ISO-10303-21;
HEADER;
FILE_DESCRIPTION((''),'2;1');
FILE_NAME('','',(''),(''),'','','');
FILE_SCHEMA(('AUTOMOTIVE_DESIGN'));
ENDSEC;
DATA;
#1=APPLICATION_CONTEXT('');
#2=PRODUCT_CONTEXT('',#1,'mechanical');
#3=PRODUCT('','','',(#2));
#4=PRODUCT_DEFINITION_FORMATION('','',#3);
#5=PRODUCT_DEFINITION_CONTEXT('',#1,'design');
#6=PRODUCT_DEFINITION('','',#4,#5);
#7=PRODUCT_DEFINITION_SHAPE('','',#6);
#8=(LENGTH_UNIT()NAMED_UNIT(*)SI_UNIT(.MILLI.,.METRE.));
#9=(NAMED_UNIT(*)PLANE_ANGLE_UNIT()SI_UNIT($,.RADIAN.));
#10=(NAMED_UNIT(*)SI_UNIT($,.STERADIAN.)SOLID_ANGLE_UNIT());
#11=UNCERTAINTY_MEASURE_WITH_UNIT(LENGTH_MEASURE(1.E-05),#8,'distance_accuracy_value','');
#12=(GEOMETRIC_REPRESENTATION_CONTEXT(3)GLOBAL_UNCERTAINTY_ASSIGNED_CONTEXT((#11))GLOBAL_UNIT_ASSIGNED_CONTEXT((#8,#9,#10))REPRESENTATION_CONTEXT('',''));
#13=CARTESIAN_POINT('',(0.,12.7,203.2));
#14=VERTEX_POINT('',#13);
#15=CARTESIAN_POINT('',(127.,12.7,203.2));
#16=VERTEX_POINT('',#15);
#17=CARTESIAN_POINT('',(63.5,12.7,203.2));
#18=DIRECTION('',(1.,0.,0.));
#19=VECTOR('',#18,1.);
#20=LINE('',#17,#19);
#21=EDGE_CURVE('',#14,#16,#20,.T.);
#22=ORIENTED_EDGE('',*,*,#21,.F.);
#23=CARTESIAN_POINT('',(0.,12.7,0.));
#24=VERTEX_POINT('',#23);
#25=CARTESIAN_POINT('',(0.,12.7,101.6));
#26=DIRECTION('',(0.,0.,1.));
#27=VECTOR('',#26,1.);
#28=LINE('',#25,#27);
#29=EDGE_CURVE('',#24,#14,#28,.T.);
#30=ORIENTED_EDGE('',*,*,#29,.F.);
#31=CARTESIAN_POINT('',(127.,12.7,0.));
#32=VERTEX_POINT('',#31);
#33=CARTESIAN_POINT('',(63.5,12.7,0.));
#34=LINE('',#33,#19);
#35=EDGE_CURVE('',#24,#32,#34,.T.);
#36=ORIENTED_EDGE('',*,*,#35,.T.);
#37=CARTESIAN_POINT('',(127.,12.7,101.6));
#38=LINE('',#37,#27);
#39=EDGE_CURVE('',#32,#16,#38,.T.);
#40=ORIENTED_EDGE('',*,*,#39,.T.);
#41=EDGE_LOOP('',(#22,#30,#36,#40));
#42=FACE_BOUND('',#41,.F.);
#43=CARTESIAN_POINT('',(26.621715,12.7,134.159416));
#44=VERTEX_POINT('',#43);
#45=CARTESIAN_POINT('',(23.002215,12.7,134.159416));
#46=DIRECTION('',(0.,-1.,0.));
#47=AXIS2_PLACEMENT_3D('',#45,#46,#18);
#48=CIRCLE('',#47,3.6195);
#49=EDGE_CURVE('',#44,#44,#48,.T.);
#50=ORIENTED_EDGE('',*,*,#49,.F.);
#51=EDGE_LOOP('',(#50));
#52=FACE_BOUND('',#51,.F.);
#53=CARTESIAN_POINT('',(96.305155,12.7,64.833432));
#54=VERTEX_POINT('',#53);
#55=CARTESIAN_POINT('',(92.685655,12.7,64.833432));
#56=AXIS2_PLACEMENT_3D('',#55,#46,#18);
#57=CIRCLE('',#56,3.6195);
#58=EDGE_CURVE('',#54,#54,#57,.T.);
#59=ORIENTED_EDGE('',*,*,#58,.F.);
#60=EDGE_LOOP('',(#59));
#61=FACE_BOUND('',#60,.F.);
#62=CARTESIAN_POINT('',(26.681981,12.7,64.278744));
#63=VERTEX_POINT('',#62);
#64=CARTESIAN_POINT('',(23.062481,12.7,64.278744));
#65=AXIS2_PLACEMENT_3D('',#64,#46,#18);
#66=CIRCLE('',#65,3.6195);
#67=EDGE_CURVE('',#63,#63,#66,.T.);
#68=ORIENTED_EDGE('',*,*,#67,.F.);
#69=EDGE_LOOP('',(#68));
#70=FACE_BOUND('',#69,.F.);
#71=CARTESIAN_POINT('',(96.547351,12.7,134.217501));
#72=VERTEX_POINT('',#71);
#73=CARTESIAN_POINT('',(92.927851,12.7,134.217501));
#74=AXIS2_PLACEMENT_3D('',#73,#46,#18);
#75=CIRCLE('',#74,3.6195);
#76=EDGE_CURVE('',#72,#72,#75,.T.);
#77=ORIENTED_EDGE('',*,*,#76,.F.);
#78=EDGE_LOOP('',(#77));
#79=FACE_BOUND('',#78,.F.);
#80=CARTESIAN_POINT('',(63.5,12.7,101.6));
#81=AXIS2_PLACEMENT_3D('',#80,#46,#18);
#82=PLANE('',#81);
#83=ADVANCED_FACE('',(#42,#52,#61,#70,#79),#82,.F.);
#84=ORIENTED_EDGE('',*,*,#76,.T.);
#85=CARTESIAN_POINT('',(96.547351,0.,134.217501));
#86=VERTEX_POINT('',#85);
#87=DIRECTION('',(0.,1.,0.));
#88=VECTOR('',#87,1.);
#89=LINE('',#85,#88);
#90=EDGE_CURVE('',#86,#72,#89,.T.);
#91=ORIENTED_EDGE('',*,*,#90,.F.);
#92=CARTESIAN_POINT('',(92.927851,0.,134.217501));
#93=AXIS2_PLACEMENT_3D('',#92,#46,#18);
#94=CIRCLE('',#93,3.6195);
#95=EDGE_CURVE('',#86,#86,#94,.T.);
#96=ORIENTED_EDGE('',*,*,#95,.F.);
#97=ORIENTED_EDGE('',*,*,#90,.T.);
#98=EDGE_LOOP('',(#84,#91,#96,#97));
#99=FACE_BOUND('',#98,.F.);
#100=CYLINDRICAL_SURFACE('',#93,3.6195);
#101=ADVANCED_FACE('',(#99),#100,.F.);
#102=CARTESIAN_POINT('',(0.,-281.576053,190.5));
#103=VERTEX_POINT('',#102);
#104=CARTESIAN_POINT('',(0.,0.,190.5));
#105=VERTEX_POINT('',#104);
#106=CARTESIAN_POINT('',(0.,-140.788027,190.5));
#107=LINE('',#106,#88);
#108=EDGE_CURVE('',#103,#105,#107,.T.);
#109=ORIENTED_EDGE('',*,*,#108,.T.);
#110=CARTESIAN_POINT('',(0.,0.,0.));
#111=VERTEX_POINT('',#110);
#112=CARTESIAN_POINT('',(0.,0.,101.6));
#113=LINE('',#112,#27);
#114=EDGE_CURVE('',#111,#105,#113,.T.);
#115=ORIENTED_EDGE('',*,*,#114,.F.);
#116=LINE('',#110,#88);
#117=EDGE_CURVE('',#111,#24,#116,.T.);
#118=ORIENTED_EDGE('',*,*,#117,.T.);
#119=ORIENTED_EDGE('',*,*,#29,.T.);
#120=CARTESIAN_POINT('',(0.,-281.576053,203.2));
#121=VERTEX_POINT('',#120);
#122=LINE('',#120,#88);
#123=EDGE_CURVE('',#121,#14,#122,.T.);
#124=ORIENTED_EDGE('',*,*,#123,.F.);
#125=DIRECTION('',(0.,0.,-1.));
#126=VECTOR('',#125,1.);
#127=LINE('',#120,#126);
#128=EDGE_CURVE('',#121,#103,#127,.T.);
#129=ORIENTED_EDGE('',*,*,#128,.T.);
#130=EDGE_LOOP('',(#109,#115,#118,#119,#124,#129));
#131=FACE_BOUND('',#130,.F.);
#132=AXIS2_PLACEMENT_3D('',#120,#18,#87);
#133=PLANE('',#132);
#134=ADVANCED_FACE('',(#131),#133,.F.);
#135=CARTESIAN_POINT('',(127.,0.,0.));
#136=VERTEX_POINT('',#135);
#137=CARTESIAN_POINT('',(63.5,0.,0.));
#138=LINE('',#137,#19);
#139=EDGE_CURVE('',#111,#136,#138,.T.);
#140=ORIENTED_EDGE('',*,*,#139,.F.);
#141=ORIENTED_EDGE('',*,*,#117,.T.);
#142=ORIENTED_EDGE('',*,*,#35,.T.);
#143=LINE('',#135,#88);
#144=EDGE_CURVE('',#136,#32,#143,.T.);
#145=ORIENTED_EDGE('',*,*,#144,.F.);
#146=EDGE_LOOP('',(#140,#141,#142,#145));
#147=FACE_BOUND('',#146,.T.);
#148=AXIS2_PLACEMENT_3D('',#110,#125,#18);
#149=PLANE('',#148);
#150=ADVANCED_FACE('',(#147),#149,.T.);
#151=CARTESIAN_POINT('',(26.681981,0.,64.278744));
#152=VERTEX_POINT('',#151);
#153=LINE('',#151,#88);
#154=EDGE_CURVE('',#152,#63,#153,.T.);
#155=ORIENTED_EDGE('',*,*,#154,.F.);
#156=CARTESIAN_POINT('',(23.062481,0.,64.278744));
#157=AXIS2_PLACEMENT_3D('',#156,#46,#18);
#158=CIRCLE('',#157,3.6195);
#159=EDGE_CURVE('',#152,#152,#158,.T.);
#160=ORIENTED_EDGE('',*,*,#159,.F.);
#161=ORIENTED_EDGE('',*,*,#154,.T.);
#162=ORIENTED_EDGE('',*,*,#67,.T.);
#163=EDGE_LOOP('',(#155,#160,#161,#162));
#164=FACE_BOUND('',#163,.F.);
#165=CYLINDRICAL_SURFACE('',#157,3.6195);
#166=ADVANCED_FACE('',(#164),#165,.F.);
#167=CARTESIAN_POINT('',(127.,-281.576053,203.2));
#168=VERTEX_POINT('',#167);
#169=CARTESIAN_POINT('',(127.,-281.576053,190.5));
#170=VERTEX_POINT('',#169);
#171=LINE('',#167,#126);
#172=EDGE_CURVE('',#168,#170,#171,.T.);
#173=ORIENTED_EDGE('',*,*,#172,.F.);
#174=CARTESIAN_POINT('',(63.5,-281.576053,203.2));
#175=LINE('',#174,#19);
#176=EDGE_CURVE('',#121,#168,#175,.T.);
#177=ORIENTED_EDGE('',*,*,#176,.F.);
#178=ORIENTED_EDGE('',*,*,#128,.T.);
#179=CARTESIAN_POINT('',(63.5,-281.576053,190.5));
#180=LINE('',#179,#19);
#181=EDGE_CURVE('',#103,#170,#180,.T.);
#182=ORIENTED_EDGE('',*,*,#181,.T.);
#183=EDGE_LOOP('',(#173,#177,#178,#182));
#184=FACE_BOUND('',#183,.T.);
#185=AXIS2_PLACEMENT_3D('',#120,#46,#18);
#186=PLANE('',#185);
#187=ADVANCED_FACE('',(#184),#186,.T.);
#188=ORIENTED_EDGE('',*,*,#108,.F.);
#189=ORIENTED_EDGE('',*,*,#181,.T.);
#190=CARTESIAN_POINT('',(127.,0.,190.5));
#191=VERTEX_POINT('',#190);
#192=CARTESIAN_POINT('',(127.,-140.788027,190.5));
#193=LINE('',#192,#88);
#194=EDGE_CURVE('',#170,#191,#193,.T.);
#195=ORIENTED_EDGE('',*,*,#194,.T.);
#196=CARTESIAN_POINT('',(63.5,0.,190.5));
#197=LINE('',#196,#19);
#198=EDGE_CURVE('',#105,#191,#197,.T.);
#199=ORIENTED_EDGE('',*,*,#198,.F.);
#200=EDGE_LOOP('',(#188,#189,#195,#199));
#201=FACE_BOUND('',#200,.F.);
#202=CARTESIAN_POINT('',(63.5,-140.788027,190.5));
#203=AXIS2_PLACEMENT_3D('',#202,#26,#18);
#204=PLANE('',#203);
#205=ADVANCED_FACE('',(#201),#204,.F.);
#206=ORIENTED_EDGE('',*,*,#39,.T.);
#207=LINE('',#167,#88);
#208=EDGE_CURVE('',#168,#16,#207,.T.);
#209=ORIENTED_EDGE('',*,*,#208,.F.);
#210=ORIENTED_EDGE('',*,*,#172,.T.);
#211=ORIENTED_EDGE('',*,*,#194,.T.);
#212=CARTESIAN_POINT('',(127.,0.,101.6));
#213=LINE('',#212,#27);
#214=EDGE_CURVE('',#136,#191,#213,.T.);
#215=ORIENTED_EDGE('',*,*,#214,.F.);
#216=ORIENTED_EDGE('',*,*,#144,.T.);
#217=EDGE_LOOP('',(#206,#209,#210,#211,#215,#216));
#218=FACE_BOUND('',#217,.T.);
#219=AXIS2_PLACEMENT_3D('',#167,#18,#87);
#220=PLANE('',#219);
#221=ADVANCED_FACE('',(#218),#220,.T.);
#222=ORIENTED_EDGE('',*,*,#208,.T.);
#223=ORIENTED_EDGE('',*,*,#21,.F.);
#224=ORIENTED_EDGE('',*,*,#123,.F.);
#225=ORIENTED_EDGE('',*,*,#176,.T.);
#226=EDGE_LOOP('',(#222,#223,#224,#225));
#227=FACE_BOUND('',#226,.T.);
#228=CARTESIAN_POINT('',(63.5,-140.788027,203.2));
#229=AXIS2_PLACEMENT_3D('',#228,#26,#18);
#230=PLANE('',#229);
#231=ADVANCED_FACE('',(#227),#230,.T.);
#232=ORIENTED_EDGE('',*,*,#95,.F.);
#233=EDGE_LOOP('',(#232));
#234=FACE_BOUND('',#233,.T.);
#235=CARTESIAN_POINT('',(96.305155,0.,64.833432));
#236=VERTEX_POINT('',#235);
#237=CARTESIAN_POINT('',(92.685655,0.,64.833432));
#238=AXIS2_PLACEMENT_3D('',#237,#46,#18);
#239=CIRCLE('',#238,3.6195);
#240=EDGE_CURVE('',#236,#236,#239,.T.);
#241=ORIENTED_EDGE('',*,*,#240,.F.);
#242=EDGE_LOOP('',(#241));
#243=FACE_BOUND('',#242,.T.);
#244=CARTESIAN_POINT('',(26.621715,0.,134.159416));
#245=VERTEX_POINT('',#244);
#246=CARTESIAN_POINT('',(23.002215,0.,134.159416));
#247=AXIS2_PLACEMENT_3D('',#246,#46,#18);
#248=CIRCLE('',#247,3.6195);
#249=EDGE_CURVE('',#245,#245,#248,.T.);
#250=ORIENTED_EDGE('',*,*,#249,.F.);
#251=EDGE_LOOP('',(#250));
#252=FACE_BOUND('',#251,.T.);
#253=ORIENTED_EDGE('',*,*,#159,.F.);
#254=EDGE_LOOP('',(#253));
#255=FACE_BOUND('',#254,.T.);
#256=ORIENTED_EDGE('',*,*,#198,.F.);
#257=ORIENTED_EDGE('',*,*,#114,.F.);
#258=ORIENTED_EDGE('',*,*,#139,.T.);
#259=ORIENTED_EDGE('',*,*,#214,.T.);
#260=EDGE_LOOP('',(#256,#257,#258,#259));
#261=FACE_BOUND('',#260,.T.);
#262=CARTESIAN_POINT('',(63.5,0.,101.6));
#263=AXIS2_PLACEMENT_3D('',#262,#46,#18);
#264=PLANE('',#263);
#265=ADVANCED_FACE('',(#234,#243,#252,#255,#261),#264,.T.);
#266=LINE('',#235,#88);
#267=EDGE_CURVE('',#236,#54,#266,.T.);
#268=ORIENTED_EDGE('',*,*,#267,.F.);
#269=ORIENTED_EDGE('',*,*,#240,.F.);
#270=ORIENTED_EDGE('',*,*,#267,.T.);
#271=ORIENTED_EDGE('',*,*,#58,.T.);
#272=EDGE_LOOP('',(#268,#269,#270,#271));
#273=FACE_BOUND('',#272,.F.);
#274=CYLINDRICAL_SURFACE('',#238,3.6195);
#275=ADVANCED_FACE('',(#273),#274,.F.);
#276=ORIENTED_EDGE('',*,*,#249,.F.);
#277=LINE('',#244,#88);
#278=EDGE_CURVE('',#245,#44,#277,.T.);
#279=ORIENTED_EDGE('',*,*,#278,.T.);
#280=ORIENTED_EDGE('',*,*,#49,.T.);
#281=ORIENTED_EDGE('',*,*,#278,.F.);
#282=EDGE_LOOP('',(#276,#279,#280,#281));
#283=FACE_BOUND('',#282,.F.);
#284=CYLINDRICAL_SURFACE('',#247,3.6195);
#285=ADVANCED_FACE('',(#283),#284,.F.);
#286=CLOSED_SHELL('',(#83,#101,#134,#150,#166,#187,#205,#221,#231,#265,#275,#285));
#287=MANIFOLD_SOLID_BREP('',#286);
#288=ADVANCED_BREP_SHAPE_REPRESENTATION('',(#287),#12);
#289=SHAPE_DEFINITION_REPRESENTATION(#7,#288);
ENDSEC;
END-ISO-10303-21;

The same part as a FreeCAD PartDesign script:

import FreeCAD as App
import Part
import Sketcher
Q = App.Units.Quantity


def add_polygon(sketch, points):
    """Adds a closed chain of lines whose ends are joined by coincident constraints."""
    first, n = sketch.GeometryCount, len(points)
    for a, b in zip(points, points[1:] + points[:1]):
        sketch.addGeometry(Part.LineSegment(App.Vector(*a, 0), App.Vector(*b, 0)), False)
    for i in range(n):
        sketch.addConstraint(Sketcher.Constraint("Coincident", first + i, 2, first + (i + 1) % n, 1))

doc = App.newDocument("Part")
body = doc.addObject("PartDesign::Body", "Body")

# Sketch on XZ plane
sketch1 = doc.addObject("Sketcher::SketchObject", "Sketch")
body.addObject(sketch1)
sketch1.AttachmentSupport = (doc.XZ_Plane, [""])
sketch1.MapMode = "FlatFace"
add_polygon(sketch1, [(0, 203.2), (0, 0), (127, 0), (127, 203.2)])  # lines 0-3
sketch1.addConstraint(Sketcher.Constraint("Vertical", 0))
sketch1.addConstraint(Sketcher.Constraint("Horizontal", 1))
sketch1.addConstraint(Sketcher.Constraint("Vertical", 2))
sketch1.addConstraint(Sketcher.Constraint("Horizontal", 3))
sketch1.addConstraint(Sketcher.Constraint("Coincident", 0, 2, -1, 1))
sketch1.addConstraint(Sketcher.Constraint("DistanceX", 1, 1, 1, 2, Q("5 in")))
sketch1.addConstraint(Sketcher.Constraint("DistanceY", 0, 2, 0, 1, Q("8 in")))
pad1 = doc.addObject("PartDesign::Pad", "Pad")
body.addObject(pad1)
pad1.Profile = sketch1
pad1.Length = Q("0.5 in")
pad1.Reversed = True

# Sketch on XY plane
sketch2 = doc.addObject("Sketcher::SketchObject", "Sketch001")
body.addObject(sketch2)
sketch2.AttachmentSupport = (doc.XY_Plane, [""])
sketch2.MapMode = "FlatFace"
sketch2.AttachmentOffset = App.Placement(App.Vector(0, 0, 8 * 25.4), App.Rotation())
add_polygon(sketch2, [(0, 0), (0, -281.576053), (127, -281.576053), (127, 0)])  # lines 0-3
sketch2.addConstraint(Sketcher.Constraint("Vertical", 0))
sketch2.addConstraint(Sketcher.Constraint("Horizontal", 1))
sketch2.addConstraint(Sketcher.Constraint("Vertical", 2))
sketch2.addConstraint(Sketcher.Constraint("Horizontal", 3))
sketch2.addConstraint(Sketcher.Constraint("Coincident", 3, 2, -1, 1))
sketch2.addConstraint(Sketcher.Constraint("DistanceX", 1, 1, 1, 2, Q("5 in")))
sketch2.addConstraint(Sketcher.Constraint("DistanceY", 0, 2, 0, 1, 281.576053))
pad2 = doc.addObject("PartDesign::Pad", "Pad001")
body.addObject(pad2)
pad2.Profile = sketch2
pad2.Length = Q("0.5 in")
pad2.Reversed = True

# Sketch on XZ plane
sketch3 = doc.addObject("Sketcher::SketchObject", "Sketch002")
body.addObject(sketch3)
sketch3.AttachmentSupport = (doc.XZ_Plane, [""])
sketch3.MapMode = "FlatFace"
sketch3.addGeometry(Part.Circle(App.Vector(92.685655, 64.833432, 0), App.Vector(0, 0, 1), 3.6195), False)
sketch3.addConstraint(Sketcher.Constraint("Diameter", 0, Q("0.285 in")))
sketch3.addConstraint(Sketcher.Constraint("DistanceX", -1, 1, 0, 3, 92.685655))
sketch3.addConstraint(Sketcher.Constraint("DistanceY", -1, 1, 0, 3, 64.833432))
pocket1 = doc.addObject("PartDesign::Pocket", "Pocket")
body.addObject(pocket1)
pocket1.Profile = sketch3
pocket1.Length = Q("0.5 in")

# Sketch on XZ plane
sketch4 = doc.addObject("Sketcher::SketchObject", "Sketch003")
body.addObject(sketch4)
sketch4.AttachmentSupport = (doc.XZ_Plane, [""])
sketch4.MapMode = "FlatFace"
sketch4.addGeometry(Part.Circle(App.Vector(92.927851, 134.217501, 0), App.Vector(0, 0, 1), 3.6195), False)
sketch4.addConstraint(Sketcher.Constraint("Diameter", 0, Q("0.285 in")))
sketch4.addConstraint(Sketcher.Constraint("DistanceY", -1, 1, 0, 3, 134.217501))
sketch4.addConstraint(Sketcher.Constraint("DistanceX", -1, 1, 0, 3, 92.927851))
pocket2 = doc.addObject("PartDesign::Pocket", "Pocket001")
body.addObject(pocket2)
pocket2.Profile = sketch4
pocket2.Length = Q("0.5 in")

# Sketch on XZ plane
sketch5 = doc.addObject("Sketcher::SketchObject", "Sketch004")
body.addObject(sketch5)
sketch5.AttachmentSupport = (doc.XZ_Plane, [""])
sketch5.MapMode = "FlatFace"
sketch5.addGeometry(Part.Circle(App.Vector(23.062481, 64.278744, 0), App.Vector(0, 0, 1), 3.6195), False)
sketch5.addConstraint(Sketcher.Constraint("Diameter", 0, Q("0.285 in")))
sketch5.addConstraint(Sketcher.Constraint("DistanceX", -1, 1, 0, 3, 23.062481))
sketch5.addConstraint(Sketcher.Constraint("DistanceY", -1, 1, 0, 3, 64.278744))
pocket3 = doc.addObject("PartDesign::Pocket", "Pocket002")
body.addObject(pocket3)
pocket3.Profile = sketch5
pocket3.Length = Q("0.5 in")

# Sketch on XZ plane
sketch6 = doc.addObject("Sketcher::SketchObject", "Sketch005")
body.addObject(sketch6)
sketch6.AttachmentSupport = (doc.XZ_Plane, [""])
sketch6.MapMode = "FlatFace"
sketch6.addGeometry(Part.Circle(App.Vector(23.002215, 134.159416, 0), App.Vector(0, 0, 1), 3.6195), False)
sketch6.addConstraint(Sketcher.Constraint("Diameter", 0, Q("0.285 in")))
sketch6.addConstraint(Sketcher.Constraint("DistanceX", -1, 1, 0, 3, 23.002215))
sketch6.addConstraint(Sketcher.Constraint("DistanceY", -1, 1, 0, 3, 134.159416))
pocket4 = doc.addObject("PartDesign::Pocket", "Pocket003")
body.addObject(pocket4)
pocket4.Profile = sketch6
pocket4.Length = Q("0.5 in")

doc.recompute()
